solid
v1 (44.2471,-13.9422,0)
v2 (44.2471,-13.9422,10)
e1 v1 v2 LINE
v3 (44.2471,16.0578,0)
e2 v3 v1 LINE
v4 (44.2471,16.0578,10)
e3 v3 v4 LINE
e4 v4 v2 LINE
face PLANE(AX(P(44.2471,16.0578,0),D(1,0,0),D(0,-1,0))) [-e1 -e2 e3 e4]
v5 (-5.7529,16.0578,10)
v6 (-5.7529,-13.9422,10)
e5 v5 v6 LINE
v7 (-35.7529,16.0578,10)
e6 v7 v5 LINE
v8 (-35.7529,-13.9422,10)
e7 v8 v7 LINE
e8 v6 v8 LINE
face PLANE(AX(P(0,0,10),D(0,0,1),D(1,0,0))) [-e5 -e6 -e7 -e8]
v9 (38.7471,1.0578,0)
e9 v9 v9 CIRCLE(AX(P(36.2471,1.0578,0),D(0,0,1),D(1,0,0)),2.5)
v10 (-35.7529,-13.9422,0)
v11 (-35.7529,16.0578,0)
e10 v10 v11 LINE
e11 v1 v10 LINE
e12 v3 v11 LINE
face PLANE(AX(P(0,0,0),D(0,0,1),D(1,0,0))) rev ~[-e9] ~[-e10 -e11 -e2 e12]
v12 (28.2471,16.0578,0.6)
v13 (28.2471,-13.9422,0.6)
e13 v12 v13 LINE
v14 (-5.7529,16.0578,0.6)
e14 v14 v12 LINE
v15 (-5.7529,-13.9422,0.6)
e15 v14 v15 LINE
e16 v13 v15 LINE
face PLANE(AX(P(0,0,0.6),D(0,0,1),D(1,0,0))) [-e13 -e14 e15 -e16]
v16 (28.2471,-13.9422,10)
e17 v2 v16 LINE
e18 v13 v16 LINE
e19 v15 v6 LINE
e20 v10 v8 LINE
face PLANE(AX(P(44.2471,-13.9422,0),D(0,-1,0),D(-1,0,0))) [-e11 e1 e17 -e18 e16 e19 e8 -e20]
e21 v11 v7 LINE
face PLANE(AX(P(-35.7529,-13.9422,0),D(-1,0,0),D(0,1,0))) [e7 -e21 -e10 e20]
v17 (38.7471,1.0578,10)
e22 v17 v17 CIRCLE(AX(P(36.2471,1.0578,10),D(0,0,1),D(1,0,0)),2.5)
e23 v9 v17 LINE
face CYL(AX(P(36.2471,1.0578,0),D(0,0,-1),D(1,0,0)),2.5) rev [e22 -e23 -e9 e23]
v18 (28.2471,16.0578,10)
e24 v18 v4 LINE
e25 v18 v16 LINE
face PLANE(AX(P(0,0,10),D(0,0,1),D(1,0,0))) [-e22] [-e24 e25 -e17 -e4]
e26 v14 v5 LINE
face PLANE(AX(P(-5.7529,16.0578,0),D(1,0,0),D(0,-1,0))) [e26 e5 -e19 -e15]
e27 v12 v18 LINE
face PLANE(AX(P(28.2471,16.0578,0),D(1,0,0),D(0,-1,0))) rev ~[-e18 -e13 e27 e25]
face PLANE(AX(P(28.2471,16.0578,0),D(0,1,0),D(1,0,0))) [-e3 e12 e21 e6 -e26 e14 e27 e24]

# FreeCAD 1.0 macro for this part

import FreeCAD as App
import Part
import Sketcher

doc = App.newDocument("Part")
body = doc.addObject("PartDesign::Body", "Body")

sketch1 = body.newObject("Sketcher::SketchObject", "Sketch")
sketch1.AttachmentSupport = (doc.getObject("XY_Plane"), [""])
sketch1.MapMode = "FlatFace"
sketch1.addGeometry(Part.LineSegment(App.Vector(-6, 16, 0), App.Vector(-36, 16, 0)), False)
sketch1.addGeometry(Part.LineSegment(App.Vector(-36, 16, 0), App.Vector(-36, -14, 0)), False)
sketch1.addGeometry(Part.LineSegment(App.Vector(-36, -14, 0), App.Vector(-6, -14, 0)), False)
sketch1.addGeometry(Part.LineSegment(App.Vector(-6, -14, 0), App.Vector(-6, 16, 0)), False)
sketch1.addConstraint(Sketcher.Constraint("Coincident", 0, 2, 1, 1))
sketch1.addConstraint(Sketcher.Constraint("Coincident", 1, 2, 2, 1))
sketch1.addConstraint(Sketcher.Constraint("Coincident", 2, 2, 3, 1))
sketch1.addConstraint(Sketcher.Constraint("Coincident", 3, 2, 0, 1))
sketch1.addConstraint(Sketcher.Constraint("Horizontal", 0))
sketch1.addConstraint(Sketcher.Constraint("Vertical", 1))
sketch1.addConstraint(Sketcher.Constraint("Horizontal", 2))
sketch1.addConstraint(Sketcher.Constraint("Vertical", 3))
sketch1.addConstraint(Sketcher.Constraint("Equal", 2, 1))
sketch1.addConstraint(Sketcher.Constraint("DistanceX", 0, 2, 0, 1, 30.0))
sketch1.addConstraint(Sketcher.Constraint("DistanceX", 0, 2, -1, 1, 35.753))
sketch1.addConstraint(Sketcher.Constraint("DistanceY", -1, 1, 0, 2, 16.0578))
pad1 = body.newObject("PartDesign::Pad", "Pad")
pad1.Profile = sketch1
pad1.Length = 10

sketch2 = body.newObject("Sketcher::SketchObject", "Sketch001")
sketch2.AttachmentSupport = (doc.getObject("XY_Plane"), [""])
sketch2.MapMode = "FlatFace"
sketch2.addGeometry(Part.LineSegment(App.Vector(28, 16, 0), App.Vector(-6, 16, 0)), False)
sketch2.addGeometry(Part.LineSegment(App.Vector(-6, 16, 0), App.Vector(-6, -14, 0)), False)
sketch2.addGeometry(Part.LineSegment(App.Vector(-6, -14, 0), App.Vector(28, -14, 0)), False)
sketch2.addGeometry(Part.LineSegment(App.Vector(28, -14, 0), App.Vector(28, 16, 0)), False)
sketch2.addConstraint(Sketcher.Constraint("Coincident", 0, 2, 1, 1))
sketch2.addConstraint(Sketcher.Constraint("Coincident", 1, 2, 2, 1))
sketch2.addConstraint(Sketcher.Constraint("Coincident", 2, 2, 3, 1))
sketch2.addConstraint(Sketcher.Constraint("Coincident", 3, 2, 0, 1))
sketch2.addConstraint(Sketcher.Constraint("Horizontal", 0))
sketch2.addConstraint(Sketcher.Constraint("Vertical", 1))
sketch2.addConstraint(Sketcher.Constraint("Horizontal", 2))
sketch2.addConstraint(Sketcher.Constraint("Vertical", 3))
sketch2.addConstraint(Sketcher.Constraint("DistanceY", 1, 2, 1, 1, 30.0))
sketch2.addConstraint(Sketcher.Constraint("DistanceX", 0, 2, 0, 1, 34.0))
sketch2.addConstraint(Sketcher.Constraint("DistanceX", 0, 2, -1, 1, 5.753))
sketch2.addConstraint(Sketcher.Constraint("DistanceY", -1, 1, 0, 2, 16.0578))
pad2 = body.newObject("PartDesign::Pad", "Pad001")
pad2.Profile = sketch2
pad2.Length = 0.6

sketch3 = body.newObject("Sketcher::SketchObject", "Sketch002")
sketch3.AttachmentSupport = (doc.getObject("XY_Plane"), [""])
sketch3.MapMode = "FlatFace"
sketch3.addGeometry(Part.LineSegment(App.Vector(44.2, 16.1, 0), App.Vector(28.2, 16.1, 0)), False)
sketch3.addGeometry(Part.LineSegment(App.Vector(28.2, 16.1, 0), App.Vector(28.2, -13.9, 0)), False)
sketch3.addGeometry(Part.LineSegment(App.Vector(28.2, -13.9, 0), App.Vector(44.2, -13.9, 0)), False)
sketch3.addGeometry(Part.LineSegment(App.Vector(44.2, -13.9, 0), App.Vector(44.2, 16.1, 0)), False)
sketch3.addGeometry(Part.Circle(App.Vector(36.2, 1.1, 0), App.Vector(0, 0, 1), 2.5), False)
sketch3.addConstraint(Sketcher.Constraint("Coincident", 0, 2, 1, 1))
sketch3.addConstraint(Sketcher.Constraint("Coincident", 1, 2, 2, 1))
sketch3.addConstraint(Sketcher.Constraint("Coincident", 2, 2, 3, 1))
sketch3.addConstraint(Sketcher.Constraint("Coincident", 3, 2, 0, 1))
sketch3.addConstraint(Sketcher.Constraint("Horizontal", 0))
sketch3.addConstraint(Sketcher.Constraint("Vertical", 1))
sketch3.addConstraint(Sketcher.Constraint("Horizontal", 2))
sketch3.addConstraint(Sketcher.Constraint("Vertical", 3))
sketch3.addConstraint(Sketcher.Constraint("Diameter", 4, 5.0))
sketch3.addConstraint(Sketcher.Constraint("DistanceY", 1, 2, 1, 1, 30.0))
sketch3.addConstraint(Sketcher.Constraint("DistanceX", 0, 2, 4, 3, 8.0))
sketch3.addConstraint(Sketcher.Constraint("DistanceX", 4, 3, 2, 2, 8.0))
sketch3.addConstraint(Sketcher.Constraint("DistanceY", 4, 3, 0, 2, 15.0))
sketch3.addConstraint(Sketcher.Constraint("DistanceX", -1, 1, 4, 3, 36.247))
sketch3.addConstraint(Sketcher.Constraint("DistanceY", -1, 1, 4, 3, 1.0578))
pad3 = body.newObject("PartDesign::Pad", "Pad002")
pad3.Profile = sketch3
pad3.Length = 10

doc.recompute()
